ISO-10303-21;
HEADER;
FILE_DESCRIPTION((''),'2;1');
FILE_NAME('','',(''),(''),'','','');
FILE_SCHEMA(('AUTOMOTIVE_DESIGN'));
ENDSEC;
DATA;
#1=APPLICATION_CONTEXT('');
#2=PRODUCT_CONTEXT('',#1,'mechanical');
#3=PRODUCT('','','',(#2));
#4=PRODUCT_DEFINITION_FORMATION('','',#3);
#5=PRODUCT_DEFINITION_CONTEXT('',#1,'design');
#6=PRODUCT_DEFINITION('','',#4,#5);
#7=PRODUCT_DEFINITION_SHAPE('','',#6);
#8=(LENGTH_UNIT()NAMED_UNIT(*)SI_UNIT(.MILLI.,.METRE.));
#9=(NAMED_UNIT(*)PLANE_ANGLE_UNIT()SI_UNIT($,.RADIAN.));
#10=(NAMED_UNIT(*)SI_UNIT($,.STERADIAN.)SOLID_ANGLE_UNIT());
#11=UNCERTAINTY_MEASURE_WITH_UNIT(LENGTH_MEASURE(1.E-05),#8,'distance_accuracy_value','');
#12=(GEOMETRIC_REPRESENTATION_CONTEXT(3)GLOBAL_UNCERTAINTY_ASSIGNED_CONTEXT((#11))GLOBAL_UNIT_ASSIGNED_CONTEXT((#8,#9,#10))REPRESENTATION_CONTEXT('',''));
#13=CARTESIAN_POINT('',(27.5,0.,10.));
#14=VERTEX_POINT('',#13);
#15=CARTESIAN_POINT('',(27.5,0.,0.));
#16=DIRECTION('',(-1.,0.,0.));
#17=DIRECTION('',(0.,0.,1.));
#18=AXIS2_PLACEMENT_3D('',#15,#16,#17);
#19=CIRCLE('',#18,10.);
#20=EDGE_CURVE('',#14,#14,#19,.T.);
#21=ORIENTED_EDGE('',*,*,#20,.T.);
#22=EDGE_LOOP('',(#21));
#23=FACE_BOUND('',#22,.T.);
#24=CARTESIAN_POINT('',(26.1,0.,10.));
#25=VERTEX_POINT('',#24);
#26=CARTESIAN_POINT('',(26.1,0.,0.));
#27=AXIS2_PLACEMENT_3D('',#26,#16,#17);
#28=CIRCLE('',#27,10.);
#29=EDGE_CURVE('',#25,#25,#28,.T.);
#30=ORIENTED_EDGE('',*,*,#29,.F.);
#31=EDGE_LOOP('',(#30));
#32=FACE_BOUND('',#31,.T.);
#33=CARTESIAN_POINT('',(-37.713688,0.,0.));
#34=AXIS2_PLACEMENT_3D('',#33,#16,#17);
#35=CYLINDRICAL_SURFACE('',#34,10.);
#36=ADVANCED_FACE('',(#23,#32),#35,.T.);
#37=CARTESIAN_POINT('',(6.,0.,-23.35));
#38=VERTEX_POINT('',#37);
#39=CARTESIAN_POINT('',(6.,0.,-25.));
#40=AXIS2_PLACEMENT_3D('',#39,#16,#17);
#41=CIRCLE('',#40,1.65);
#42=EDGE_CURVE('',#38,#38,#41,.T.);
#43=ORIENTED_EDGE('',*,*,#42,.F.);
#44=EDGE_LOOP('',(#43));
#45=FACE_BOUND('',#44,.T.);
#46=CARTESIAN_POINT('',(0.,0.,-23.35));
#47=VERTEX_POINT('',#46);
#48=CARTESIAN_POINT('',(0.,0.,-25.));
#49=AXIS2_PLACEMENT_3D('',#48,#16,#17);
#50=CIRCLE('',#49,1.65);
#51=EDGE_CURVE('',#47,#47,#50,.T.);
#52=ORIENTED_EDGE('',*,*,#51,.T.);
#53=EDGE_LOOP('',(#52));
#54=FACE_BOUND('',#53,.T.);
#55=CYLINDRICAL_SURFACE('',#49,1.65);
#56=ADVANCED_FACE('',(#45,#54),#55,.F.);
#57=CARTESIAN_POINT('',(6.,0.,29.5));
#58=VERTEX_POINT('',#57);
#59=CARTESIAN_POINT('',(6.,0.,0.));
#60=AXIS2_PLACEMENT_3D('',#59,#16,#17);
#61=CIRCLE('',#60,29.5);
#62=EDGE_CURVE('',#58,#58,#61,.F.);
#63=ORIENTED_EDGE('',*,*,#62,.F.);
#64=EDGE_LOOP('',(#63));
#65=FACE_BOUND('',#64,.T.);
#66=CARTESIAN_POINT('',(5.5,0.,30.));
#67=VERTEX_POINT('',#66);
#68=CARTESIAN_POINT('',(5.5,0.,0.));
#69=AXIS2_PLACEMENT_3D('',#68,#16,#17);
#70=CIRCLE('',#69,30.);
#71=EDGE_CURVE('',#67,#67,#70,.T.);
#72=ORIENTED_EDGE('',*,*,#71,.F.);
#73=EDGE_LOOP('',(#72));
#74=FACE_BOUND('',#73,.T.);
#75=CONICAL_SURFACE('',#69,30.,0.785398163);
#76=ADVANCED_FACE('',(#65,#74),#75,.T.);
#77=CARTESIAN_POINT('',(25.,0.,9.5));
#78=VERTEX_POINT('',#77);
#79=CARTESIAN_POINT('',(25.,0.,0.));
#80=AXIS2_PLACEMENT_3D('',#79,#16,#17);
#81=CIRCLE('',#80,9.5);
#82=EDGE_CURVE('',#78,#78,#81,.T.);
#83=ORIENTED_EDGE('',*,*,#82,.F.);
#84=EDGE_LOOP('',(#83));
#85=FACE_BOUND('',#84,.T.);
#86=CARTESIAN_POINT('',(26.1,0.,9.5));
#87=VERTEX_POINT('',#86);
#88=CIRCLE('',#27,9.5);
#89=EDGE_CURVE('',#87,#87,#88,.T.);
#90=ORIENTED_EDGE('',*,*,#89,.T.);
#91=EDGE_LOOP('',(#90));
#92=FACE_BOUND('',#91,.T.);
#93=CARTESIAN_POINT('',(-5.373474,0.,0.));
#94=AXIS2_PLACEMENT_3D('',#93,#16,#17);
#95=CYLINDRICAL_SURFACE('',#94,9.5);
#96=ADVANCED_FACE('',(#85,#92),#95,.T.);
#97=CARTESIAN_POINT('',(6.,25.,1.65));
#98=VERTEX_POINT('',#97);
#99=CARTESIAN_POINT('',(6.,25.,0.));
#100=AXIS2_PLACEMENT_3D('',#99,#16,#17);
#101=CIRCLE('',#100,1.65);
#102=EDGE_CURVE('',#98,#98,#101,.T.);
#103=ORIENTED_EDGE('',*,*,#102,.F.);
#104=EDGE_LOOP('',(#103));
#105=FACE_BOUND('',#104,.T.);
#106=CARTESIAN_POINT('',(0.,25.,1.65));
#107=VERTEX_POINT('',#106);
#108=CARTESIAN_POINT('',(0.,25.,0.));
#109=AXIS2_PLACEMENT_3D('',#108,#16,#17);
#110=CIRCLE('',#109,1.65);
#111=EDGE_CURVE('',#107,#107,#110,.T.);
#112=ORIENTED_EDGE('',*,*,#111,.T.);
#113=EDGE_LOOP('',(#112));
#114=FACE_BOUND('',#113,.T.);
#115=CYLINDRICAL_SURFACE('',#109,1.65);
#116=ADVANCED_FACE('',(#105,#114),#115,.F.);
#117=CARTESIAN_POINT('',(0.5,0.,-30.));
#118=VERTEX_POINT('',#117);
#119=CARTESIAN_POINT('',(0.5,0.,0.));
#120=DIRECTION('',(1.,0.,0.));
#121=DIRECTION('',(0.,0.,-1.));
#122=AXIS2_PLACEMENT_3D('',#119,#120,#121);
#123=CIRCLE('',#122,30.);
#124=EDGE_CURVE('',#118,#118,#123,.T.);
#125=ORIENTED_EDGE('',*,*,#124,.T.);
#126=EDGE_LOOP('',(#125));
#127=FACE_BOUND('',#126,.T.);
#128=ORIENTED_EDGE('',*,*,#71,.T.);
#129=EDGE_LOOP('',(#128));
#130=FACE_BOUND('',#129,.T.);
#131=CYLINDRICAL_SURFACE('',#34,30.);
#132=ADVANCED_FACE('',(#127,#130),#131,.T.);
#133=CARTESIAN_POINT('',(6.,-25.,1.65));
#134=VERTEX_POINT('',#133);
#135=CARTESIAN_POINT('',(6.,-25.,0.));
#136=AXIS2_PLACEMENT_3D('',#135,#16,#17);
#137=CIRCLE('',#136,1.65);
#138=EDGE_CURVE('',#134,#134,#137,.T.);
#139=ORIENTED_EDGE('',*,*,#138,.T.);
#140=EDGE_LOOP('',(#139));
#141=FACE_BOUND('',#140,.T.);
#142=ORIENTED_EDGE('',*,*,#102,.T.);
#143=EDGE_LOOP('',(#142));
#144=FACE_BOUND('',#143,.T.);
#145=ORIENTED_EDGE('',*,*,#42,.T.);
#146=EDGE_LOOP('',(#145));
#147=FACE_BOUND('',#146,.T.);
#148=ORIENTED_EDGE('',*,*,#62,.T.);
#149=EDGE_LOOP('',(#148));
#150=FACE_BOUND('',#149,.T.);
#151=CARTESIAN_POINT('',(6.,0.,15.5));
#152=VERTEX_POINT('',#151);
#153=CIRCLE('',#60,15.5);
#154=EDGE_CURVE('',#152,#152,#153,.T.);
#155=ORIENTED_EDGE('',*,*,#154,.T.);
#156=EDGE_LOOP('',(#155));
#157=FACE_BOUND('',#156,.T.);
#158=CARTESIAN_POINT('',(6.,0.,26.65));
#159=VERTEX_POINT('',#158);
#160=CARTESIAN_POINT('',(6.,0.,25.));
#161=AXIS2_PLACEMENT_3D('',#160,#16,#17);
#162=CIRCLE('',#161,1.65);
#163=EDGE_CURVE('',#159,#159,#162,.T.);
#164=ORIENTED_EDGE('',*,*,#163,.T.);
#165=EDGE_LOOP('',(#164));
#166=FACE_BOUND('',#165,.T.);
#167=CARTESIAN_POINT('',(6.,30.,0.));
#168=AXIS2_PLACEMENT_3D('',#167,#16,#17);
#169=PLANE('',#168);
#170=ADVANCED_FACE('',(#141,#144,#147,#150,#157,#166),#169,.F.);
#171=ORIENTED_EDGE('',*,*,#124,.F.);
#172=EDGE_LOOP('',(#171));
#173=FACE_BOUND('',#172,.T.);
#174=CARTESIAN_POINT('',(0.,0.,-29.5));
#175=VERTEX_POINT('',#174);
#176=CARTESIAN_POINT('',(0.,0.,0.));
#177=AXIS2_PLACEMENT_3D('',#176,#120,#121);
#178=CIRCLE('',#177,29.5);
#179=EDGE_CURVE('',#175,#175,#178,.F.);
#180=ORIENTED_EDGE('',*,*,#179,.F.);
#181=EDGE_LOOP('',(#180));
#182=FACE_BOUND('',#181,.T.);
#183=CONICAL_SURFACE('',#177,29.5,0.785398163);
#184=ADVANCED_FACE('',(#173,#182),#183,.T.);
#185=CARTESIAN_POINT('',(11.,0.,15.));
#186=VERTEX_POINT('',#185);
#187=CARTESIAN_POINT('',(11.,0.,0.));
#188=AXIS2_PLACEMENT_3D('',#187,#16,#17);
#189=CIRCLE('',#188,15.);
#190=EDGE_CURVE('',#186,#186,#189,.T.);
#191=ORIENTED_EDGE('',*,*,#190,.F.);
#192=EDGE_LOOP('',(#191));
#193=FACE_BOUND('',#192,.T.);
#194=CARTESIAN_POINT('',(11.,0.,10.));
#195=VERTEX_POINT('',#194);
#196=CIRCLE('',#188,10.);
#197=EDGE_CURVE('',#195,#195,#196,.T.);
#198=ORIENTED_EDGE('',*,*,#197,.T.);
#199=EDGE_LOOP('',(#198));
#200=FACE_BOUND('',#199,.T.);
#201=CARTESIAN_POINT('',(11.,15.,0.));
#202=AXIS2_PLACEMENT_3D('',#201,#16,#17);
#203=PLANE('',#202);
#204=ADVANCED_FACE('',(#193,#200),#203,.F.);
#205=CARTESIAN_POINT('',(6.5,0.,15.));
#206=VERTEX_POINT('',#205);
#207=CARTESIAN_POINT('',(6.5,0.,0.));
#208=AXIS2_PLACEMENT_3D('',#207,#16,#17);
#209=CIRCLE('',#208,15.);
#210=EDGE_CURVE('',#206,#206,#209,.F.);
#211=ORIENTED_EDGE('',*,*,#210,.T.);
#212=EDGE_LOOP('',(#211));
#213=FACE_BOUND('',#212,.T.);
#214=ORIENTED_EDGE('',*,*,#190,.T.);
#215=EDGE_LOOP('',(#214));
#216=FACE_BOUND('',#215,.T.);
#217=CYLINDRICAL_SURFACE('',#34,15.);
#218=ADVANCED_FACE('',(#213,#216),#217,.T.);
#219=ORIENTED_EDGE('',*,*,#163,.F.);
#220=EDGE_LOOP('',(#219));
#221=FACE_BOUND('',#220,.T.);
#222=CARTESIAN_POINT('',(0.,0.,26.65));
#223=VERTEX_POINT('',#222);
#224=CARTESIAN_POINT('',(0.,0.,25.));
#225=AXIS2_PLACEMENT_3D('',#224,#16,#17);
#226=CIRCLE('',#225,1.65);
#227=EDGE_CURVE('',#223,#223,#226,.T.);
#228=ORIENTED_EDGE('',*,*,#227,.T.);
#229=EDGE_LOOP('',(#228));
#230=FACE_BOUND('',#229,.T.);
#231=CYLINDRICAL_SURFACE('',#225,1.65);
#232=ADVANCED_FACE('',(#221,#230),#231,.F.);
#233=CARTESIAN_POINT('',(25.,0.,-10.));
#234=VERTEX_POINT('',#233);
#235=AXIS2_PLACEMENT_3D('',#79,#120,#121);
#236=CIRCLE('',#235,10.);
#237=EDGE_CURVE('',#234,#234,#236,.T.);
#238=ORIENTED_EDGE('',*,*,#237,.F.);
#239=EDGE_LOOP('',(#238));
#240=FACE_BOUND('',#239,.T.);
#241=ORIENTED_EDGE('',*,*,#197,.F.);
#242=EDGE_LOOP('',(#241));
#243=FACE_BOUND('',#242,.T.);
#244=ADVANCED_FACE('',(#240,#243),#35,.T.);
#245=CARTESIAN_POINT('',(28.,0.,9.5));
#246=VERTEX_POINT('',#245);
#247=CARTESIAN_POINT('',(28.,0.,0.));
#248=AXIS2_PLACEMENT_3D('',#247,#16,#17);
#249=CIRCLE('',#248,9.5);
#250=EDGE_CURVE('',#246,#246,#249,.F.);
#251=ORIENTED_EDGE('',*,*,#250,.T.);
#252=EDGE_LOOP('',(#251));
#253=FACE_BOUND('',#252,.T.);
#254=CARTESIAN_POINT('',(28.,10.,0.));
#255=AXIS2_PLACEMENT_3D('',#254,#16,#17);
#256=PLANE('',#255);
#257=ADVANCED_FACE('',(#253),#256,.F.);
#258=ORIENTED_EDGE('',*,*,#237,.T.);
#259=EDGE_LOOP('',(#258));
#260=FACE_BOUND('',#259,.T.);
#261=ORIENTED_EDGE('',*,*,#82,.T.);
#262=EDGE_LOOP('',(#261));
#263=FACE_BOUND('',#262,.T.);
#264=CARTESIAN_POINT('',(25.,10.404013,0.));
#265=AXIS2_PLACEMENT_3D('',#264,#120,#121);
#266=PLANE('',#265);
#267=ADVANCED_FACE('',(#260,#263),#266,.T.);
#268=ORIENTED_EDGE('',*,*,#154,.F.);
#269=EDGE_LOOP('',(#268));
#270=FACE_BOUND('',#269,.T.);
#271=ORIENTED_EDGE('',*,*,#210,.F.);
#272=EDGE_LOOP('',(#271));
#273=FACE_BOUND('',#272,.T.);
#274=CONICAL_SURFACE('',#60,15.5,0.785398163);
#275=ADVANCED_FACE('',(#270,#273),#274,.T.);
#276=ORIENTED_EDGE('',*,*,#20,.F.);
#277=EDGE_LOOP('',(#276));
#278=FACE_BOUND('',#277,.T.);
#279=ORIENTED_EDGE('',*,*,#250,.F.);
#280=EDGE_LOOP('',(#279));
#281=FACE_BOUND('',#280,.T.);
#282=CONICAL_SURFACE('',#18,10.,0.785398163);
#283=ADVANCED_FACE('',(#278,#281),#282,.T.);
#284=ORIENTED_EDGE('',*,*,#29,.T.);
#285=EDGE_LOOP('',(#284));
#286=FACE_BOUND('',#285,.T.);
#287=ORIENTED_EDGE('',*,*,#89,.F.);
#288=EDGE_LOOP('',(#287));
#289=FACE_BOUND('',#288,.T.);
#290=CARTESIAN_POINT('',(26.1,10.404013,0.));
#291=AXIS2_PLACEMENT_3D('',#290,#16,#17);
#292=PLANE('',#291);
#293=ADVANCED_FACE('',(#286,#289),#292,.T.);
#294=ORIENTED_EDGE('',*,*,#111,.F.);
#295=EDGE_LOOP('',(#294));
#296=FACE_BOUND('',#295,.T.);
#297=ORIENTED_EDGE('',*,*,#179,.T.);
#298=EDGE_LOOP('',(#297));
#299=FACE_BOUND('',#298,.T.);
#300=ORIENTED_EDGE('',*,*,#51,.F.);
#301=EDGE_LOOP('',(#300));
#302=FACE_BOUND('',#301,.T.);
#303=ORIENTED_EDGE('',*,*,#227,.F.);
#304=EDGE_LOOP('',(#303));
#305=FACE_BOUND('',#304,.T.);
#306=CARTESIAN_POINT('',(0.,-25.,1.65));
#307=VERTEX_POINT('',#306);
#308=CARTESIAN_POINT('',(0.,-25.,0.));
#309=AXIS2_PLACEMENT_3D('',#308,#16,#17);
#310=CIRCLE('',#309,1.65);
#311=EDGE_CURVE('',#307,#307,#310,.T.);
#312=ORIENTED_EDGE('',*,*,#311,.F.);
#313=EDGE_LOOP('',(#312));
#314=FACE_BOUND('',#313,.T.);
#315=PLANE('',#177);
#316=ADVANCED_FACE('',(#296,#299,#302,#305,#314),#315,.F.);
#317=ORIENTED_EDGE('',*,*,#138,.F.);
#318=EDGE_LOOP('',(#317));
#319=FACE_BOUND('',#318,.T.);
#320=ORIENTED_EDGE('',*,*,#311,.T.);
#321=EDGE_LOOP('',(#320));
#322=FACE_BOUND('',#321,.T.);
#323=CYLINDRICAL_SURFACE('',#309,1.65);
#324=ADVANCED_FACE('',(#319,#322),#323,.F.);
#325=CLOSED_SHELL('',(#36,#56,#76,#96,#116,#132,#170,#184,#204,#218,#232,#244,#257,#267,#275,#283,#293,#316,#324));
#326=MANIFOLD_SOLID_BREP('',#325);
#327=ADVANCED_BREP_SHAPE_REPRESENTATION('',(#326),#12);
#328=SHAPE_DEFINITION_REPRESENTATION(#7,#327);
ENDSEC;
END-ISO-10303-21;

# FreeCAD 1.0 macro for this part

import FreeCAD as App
import Part
import Sketcher
from FreeCAD import Vector
Q = App.Units.Quantity


def edges_at(feature, points):
    """Names of the edges that pass closest to the given points."""
    edges = feature.Shape.Edges
    near = lambda p: min(range(len(edges)), key=lambda i: edges[i].distToShape(Part.Vertex(*p))[0])
    return sorted({f"Edge{near(p) + 1}" for p in points})

doc = App.newDocument("Part")
params = doc.addObject("Spreadsheet::Sheet", "Params")
for row, (alias, value) in enumerate([
    ("sketch1_width", "28 mm"),
    ("sketch1_width2", "17 mm"),
    ("sketch1_width3", "5 mm"),
    ("sketch1_height", "30 mm"),
    ("sketch1_height2", "10 mm"),
    ("revolution_angle", "360 deg"),
    ("sketch2_diameter", "3.3 mm"),
    ("hole_diameter", "3.3 mm"),
    ("chamfer_size", "0.5 mm"),
    ("sketch3_width", "1.1 mm"),
    ("groove_angle", "360 deg"),
], start=1):
    params.set(f"A{row}", alias)
    params.set(f"B{row}", "=" + value)
    params.setAlias(f"B{row}", alias)

body = doc.addObject("PartDesign::Body", "Body")

# Sketch on XY plane
sketch1 = doc.addObject("Sketcher::SketchObject", "Sketch")
body.addObject(sketch1)
sketch1.AttachmentSupport = (doc.XY_Plane, [""])
sketch1.MapMode = "FlatFace"
sketch1.addGeometry(Part.LineSegment(Vector(0, 30, 0), Vector(0, 0, 0)), False)
sketch1.addGeometry(Part.LineSegment(Vector(0, 0, 0), Vector(28, 0, 0)), False)
sketch1.addGeometry(Part.LineSegment(Vector(28, 0, 0), Vector(28, 10, 0)), False)
sketch1.addGeometry(Part.LineSegment(Vector(28, 10, 0), Vector(11, 10, 0)), False)
sketch1.addGeometry(Part.LineSegment(Vector(11, 10, 0), Vector(11, 15, 0)), False)
sketch1.addGeometry(Part.LineSegment(Vector(11, 15, 0), Vector(6, 15, 0)), False)
sketch1.addGeometry(Part.LineSegment(Vector(6, 15, 0), Vector(6, 30, 0)), False)
sketch1.addGeometry(Part.LineSegment(Vector(6, 30, 0), Vector(0, 30, 0)), False)
sketch1.addConstraint(Sketcher.Constraint("Coincident", 0, 2, 1, 1))
sketch1.addConstraint(Sketcher.Constraint("Coincident", 1, 2, 2, 1))
sketch1.addConstraint(Sketcher.Constraint("Coincident", 2, 2, 3, 1))
sketch1.addConstraint(Sketcher.Constraint("Coincident", 3, 2, 4, 1))
sketch1.addConstraint(Sketcher.Constraint("Coincident", 4, 2, 5, 1))
sketch1.addConstraint(Sketcher.Constraint("Coincident", 5, 2, 6, 1))
sketch1.addConstraint(Sketcher.Constraint("Coincident", 6, 2, 7, 1))
sketch1.addConstraint(Sketcher.Constraint("Coincident", 7, 2, 0, 1))
sketch1.addConstraint(Sketcher.Constraint("Vertical", 0))
sketch1.addConstraint(Sketcher.Constraint("Horizontal", 1))
sketch1.addConstraint(Sketcher.Constraint("Vertical", 2))
sketch1.addConstraint(Sketcher.Constraint("Horizontal", 3))
sketch1.addConstraint(Sketcher.Constraint("Vertical", 4))
sketch1.addConstraint(Sketcher.Constraint("Horizontal", 5))
sketch1.addConstraint(Sketcher.Constraint("Vertical", 6))
sketch1.addConstraint(Sketcher.Constraint("Horizontal", 7))
sketch1.addConstraint(Sketcher.Constraint("Coincident", 0, 2, -1, 1))
sketch1.addConstraint(Sketcher.Constraint("Equal", 5, 4))
sketch1.addConstraint(Sketcher.Constraint("DistanceX", 1, 1, 1, 2, Q("28 mm")))
sketch1.addConstraint(Sketcher.Constraint("DistanceX", 3, 2, 3, 1, Q("17 mm")))
sketch1.addConstraint(Sketcher.Constraint("DistanceX", 5, 2, 5, 1, Q("5 mm")))
sketch1.addConstraint(Sketcher.Constraint("DistanceY", 0, 2, 0, 1, Q("30 mm")))
sketch1.addConstraint(Sketcher.Constraint("DistanceY", 2, 1, 2, 2, Q("10 mm")))
sketch1.setExpression("Constraints[18]", "Params.sketch1_width")
sketch1.setExpression("Constraints[19]", "Params.sketch1_width2")
sketch1.setExpression("Constraints[20]", "Params.sketch1_width3")
sketch1.setExpression("Constraints[21]", "Params.sketch1_height")
sketch1.setExpression("Constraints[22]", "Params.sketch1_height2")
revolution = doc.addObject("PartDesign::Revolution", "Revolution")
body.addObject(revolution)
revolution.Profile = sketch1
revolution.ReferenceAxis = (sketch1, ["H_Axis"])
revolution.setExpression("Angle", "Params.revolution_angle")

# Sketch on YZ plane
sketch2 = doc.addObject("Sketcher::SketchObject", "Sketch001")
body.addObject(sketch2)
sketch2.AttachmentSupport = (doc.YZ_Plane, [""])
sketch2.MapMode = "FlatFace"
sketch2.addGeometry(Part.Circle(Vector(0, -25, 0), Vector(0, 0, 1), 1.6), False)
sketch2.addGeometry(Part.Circle(Vector(25, 0, 0), Vector(0, 0, 1), 1.6), False)
sketch2.addGeometry(Part.Circle(Vector(0, 25, 0), Vector(0, 0, 1), 1.6), False)
sketch2.addGeometry(Part.Circle(Vector(-25, 0, 0), Vector(0, 0, 1), 1.6), False)
sketch2.addConstraint(Sketcher.Constraint("Equal", 0, 1))
sketch2.addConstraint(Sketcher.Constraint("Equal", 1, 2))
sketch2.addConstraint(Sketcher.Constraint("Equal", 2, 3))
sketch2.addConstraint(Sketcher.Constraint("Symmetric", 0, 3, 2, 3, -1, 1))
sketch2.addConstraint(Sketcher.Constraint("Symmetric", 1, 3, 3, 3, -1, 1))
sketch2.addConstraint(Sketcher.Constraint("PointOnObject", 0, 3, -2))
sketch2.addConstraint(Sketcher.Constraint("PointOnObject", 1, 3, -1))
sketch2.addConstraint(Sketcher.Constraint("Diameter", 0, Q("3.3 mm")))
sketch2.addConstraint(Sketcher.Constraint("DistanceY", 0, 3, -1, 1, Q("25 mm")))
sketch2.addConstraint(Sketcher.Constraint("DistanceX", -1, 1, 1, 3, Q("25 mm")))
sketch2.setExpression("Constraints[7]", "Params.sketch2_diameter")
doc.recompute()
hole = doc.addObject("PartDesign::Hole", "Hole")
body.addObject(hole)
hole.Profile = sketch2
hole.ThreadType = "None"
hole.setExpression("Diameter", "Params.hole_diameter")
hole.DepthType = "ThroughAll"
hole.Reversed = True
doc.recompute()

chamfer = doc.addObject("PartDesign::Chamfer", "Chamfer")
body.addObject(chamfer)
chamfer.Base = (hole, edges_at(hole, [
    (28, 0, -10),
    (6, 0, -15),
    (6, 0, -30),
    (0, 0, -30),
]))
chamfer.setExpression("Size", "Params.chamfer_size")

# Sketch on XY plane
sketch3 = doc.addObject("Sketcher::SketchObject", "Sketch002")
body.addObject(sketch3)
sketch3.AttachmentSupport = (doc.XY_Plane, [""])
sketch3.MapMode = "FlatFace"
sketch3.addGeometry(Part.LineSegment(Vector(25, 10.4, 0), Vector(25, 9.5, 0)), False)
sketch3.addGeometry(Part.LineSegment(Vector(25, 9.5, 0), Vector(26.1, 9.5, 0)), False)
sketch3.addGeometry(Part.LineSegment(Vector(26.1, 9.5, 0), Vector(26.1, 10.4, 0)), False)
sketch3.addGeometry(Part.LineSegment(Vector(26.1, 10.4, 0), Vector(25, 10.4, 0)), False)
sketch3.addConstraint(Sketcher.Constraint("Coincident", 0, 2, 1, 1))
sketch3.addConstraint(Sketcher.Constraint("Coincident", 1, 2, 2, 1))
sketch3.addConstraint(Sketcher.Constraint("Coincident", 2, 2, 3, 1))
sketch3.addConstraint(Sketcher.Constraint("Coincident", 3, 2, 0, 1))
sketch3.addConstraint(Sketcher.Constraint("Vertical", 0))
sketch3.addConstraint(Sketcher.Constraint("Horizontal", 1))
sketch3.addConstraint(Sketcher.Constraint("Vertical", 2))
sketch3.addConstraint(Sketcher.Constraint("Horizontal", 3))
sketch3.addConstraint(Sketcher.Constraint("DistanceX", 1, 1, 1, 2, Q("1.1 mm")))
sketch3.addConstraint(Sketcher.Constraint("DistanceX", -1, 1, 0, 2, Q("25 mm")))
sketch3.addConstraint(Sketcher.Constraint("DistanceY", -1, 1, 0, 2, Q("9.5 mm")))
sketch3.addConstraint(Sketcher.Constraint("DistanceY", 0, 2, 0, 1, Q("0.904013 mm")))
sketch3.setExpression("Constraints[8]", "Params.sketch3_width")
groove = doc.addObject("PartDesign::Groove", "Groove")
body.addObject(groove)
groove.Profile = sketch3
groove.ReferenceAxis = (sketch3, ["H_Axis"])
groove.setExpression("Angle", "Params.groove_angle")

doc.recompute()
